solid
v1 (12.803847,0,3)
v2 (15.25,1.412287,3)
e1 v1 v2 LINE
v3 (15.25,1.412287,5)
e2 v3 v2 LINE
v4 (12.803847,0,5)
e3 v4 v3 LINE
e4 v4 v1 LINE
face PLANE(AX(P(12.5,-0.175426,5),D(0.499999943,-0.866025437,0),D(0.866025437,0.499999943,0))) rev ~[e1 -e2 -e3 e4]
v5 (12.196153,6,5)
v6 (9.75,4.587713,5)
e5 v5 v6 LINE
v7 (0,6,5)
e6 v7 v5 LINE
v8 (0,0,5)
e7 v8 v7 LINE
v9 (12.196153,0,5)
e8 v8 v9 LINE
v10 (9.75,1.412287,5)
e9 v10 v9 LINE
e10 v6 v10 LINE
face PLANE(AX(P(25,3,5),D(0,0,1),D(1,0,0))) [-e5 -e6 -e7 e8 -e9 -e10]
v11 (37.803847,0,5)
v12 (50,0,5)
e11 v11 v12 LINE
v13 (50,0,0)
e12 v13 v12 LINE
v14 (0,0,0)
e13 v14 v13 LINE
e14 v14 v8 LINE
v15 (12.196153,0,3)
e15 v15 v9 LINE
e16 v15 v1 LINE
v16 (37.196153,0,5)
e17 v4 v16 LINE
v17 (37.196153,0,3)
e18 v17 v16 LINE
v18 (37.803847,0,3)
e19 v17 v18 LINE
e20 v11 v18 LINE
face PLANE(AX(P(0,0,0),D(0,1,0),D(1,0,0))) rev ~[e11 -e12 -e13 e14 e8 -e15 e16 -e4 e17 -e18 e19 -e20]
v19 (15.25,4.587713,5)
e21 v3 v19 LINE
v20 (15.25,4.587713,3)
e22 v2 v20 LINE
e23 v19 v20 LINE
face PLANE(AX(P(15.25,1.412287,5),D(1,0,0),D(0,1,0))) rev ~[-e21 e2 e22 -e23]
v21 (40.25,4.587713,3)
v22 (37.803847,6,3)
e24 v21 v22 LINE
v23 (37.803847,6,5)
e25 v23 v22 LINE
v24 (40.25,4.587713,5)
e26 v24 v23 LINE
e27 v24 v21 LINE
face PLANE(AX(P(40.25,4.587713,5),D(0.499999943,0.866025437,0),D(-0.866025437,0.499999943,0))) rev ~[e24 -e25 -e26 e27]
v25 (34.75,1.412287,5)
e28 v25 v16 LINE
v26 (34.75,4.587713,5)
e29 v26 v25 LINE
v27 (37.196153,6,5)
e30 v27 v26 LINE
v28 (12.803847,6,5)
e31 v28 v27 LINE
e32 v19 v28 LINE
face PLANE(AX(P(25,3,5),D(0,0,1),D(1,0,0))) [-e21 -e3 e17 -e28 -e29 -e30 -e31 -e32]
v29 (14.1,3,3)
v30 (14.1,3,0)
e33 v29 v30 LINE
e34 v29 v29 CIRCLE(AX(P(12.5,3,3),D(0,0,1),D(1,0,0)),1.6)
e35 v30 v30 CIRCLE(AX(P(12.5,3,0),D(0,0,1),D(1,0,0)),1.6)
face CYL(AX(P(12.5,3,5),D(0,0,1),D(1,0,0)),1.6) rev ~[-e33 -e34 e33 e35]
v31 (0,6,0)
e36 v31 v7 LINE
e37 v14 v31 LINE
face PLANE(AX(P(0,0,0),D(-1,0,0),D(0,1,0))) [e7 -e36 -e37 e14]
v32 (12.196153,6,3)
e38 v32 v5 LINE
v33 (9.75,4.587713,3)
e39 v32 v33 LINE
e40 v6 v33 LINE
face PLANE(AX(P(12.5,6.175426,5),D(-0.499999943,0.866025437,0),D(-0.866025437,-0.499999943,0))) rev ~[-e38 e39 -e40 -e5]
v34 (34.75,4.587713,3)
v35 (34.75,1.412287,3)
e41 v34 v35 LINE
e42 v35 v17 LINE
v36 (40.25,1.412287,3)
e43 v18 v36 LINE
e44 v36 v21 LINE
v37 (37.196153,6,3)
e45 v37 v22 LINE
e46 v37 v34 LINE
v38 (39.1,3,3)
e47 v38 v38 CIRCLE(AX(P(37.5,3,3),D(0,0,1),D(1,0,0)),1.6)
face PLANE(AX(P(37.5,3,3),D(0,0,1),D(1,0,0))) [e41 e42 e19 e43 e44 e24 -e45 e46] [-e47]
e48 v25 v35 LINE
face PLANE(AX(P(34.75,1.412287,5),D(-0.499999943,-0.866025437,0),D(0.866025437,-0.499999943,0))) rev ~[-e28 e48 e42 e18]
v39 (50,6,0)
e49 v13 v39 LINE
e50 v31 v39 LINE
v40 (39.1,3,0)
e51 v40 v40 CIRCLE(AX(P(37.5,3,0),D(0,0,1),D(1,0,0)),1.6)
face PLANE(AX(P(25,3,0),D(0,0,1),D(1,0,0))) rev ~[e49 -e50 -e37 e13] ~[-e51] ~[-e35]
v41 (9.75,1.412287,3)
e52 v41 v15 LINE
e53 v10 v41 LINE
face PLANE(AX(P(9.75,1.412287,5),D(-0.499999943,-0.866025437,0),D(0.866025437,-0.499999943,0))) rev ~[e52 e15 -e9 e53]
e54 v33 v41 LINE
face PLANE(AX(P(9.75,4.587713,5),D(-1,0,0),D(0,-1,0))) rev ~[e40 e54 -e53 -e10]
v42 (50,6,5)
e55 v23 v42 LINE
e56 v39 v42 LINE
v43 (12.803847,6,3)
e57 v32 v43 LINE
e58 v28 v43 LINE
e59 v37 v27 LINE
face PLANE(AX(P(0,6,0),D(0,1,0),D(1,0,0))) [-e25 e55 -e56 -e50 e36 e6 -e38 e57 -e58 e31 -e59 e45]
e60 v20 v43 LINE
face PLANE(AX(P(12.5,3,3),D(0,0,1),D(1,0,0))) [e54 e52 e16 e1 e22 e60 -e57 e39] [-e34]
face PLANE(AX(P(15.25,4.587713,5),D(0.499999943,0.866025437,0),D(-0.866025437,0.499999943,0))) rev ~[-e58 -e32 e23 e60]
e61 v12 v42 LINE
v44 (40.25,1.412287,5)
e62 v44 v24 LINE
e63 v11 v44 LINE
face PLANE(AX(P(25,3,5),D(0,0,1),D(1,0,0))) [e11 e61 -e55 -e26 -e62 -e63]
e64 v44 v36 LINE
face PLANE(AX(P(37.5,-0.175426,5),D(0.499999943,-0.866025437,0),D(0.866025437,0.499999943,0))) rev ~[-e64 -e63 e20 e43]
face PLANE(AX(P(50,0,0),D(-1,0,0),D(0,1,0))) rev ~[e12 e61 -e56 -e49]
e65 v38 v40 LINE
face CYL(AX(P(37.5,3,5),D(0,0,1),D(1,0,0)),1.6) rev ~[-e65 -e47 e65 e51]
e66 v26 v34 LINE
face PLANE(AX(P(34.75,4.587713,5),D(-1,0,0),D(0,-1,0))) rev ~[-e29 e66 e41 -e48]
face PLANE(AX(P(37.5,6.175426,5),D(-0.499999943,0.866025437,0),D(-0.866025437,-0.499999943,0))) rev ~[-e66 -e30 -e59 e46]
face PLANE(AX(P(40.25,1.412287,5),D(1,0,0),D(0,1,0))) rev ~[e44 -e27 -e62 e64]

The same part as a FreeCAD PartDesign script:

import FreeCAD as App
import Part
import Sketcher
from FreeCAD import Vector
Q = App.Units.Quantity


def add_polygon(sketch, points):
    """Adds a closed chain of lines whose ends are joined by coincident constraints."""
    first, n = sketch.GeometryCount, len(points)
    for a, b in zip(points, points[1:] + points[:1]):
        sketch.addGeometry(Part.LineSegment(App.Vector(*a, 0), App.Vector(*b, 0)), False)
    for i in range(n):
        sketch.addConstraint(Sketcher.Constraint("Coincident", first + i, 2, first + (i + 1) % n, 1))

doc = App.newDocument("Part")
body = doc.addObject("PartDesign::Body", "Body")

sketch1 = body.newObject("Sketcher::SketchObject", "Sketch")
sketch1.AttachmentSupport = (doc.getObject("XY_Plane"), [""])
sketch1.MapMode = "FlatFace"
add_polygon(sketch1, [(0, 6), (0, 0), (50, 0), (50, 6)])
sketch1.addConstraint(Sketcher.Constraint("Vertical", 0))
sketch1.addConstraint(Sketcher.Constraint("Horizontal", 1))
sketch1.addConstraint(Sketcher.Constraint("Vertical", 2))
sketch1.addConstraint(Sketcher.Constraint("Horizontal", 3))
sketch1.addConstraint(Sketcher.Constraint("Coincident", 0, 2, -1, 1))
sketch1.addConstraint(Sketcher.Constraint("DistanceX", 1, 1, 1, 2, 50.0))
sketch1.addConstraint(Sketcher.Constraint("DistanceY", 0, 2, 0, 1, 6.0))
pad1 = body.newObject("PartDesign::Pad", "Pad")
pad1.Profile = sketch1
pad1.Length = 5

sketch2 = body.newObject("Sketcher::SketchObject", "Sketch001")
sketch2.AttachmentSupport = (doc.getObject("XY_Plane"), [""])
sketch2.MapMode = "FlatFace"
sketch2.AttachmentOffset = App.Placement(Vector(0, 0, 5), App.Rotation())
sketch2.addGeometry(Part.Circle(Vector(12.5, 3, 0), Vector(0, 0, 1), 1.6), False)
sketch2.addGeometry(Part.Circle(Vector(37.5, 3, 0), Vector(0, 0, 1), 1.6), False)
sketch2.addConstraint(Sketcher.Constraint("Equal", 0, 1))
sketch2.addConstraint(Sketcher.Constraint("Horizontal", 0, 3, 1, 3))
sketch2.addConstraint(Sketcher.Constraint("Diameter", 0, 3.2))
sketch2.addConstraint(Sketcher.Constraint("DistanceY", -1, 1, 0, 3, 3.0))
sketch2.addConstraint(Sketcher.Constraint("DistanceX", 0, 3, 1, 3, 25.0))
sketch2.addConstraint(Sketcher.Constraint("DistanceX", -1, 1, 0, 3, 12.5))
pocket1 = body.newObject("PartDesign::Pocket", "Pocket")
pocket1.Profile = sketch2
pocket1.Length = 5

sketch3 = body.newObject("Sketcher::SketchObject", "Sketch002")
sketch3.AttachmentSupport = (doc.getObject("XY_Plane"), [""])
sketch3.MapMode = "FlatFace"
sketch3.AttachmentOffset = App.Placement(Vector(0, 0, 5), App.Rotation())
add_polygon(sketch3, [(15.25, 4.587713), (12.5, 6.175426), (9.75, 4.587713), (9.75, 1.412287), (12.5, -0.175426), (15.25, 1.412287)])
add_polygon(sketch3, [(40.25, 1.412287), (40.25, 4.587713), (37.5, 6.175426), (34.75, 4.587713), (34.75, 1.412287), (37.5, -0.175426)])
sketch3.addConstraint(Sketcher.Constraint("Vertical", 2))
sketch3.addConstraint(Sketcher.Constraint("Vertical", 5))
sketch3.addConstraint(Sketcher.Constraint("Vertical", 6))
sketch3.addConstraint(Sketcher.Constraint("Vertical", 9))
sketch3.addConstraint(Sketcher.Constraint("Parallel", 0, 3))
sketch3.addConstraint(Sketcher.Constraint("Parallel", 1, 4))
sketch3.addConstraint(Sketcher.Constraint("Parallel", 3, 7))
sketch3.addConstraint(Sketcher.Constraint("Parallel", 4, 8))
sketch3.addConstraint(Sketcher.Constraint("Parallel", 7, 10))
sketch3.addConstraint(Sketcher.Constraint("Parallel", 8, 11))
sketch3.addConstraint(Sketcher.Constraint("Horizontal", 2, 2, 4, 2))
sketch3.addConstraint(Sketcher.Constraint("Horizontal", 1, 2, 5, 2))
sketch3.addConstraint(Sketcher.Constraint("Horizontal", 5, 2, 6, 2))
sketch3.addConstraint(Sketcher.Constraint("Horizontal", 0, 2, 7, 2))
sketch3.addConstraint(Sketcher.Constraint("Horizontal", 6, 2, 8, 2))
sketch3.addConstraint(Sketcher.Constraint("Horizontal", 4, 2, 9, 2))
sketch3.addConstraint(Sketcher.Constraint("Horizontal", 3, 2, 10, 2))
sketch3.addConstraint(Sketcher.Constraint("Vertical", 0, 2, 3, 2))
sketch3.addConstraint(Sketcher.Constraint("Angle", 0, Q("150.000004 deg")))
sketch3.addConstraint(Sketcher.Constraint("DistanceX", 5, 2, 6, 2, 25.0))
sketch3.addConstraint(Sketcher.Constraint("DistanceX", -1, 1, 0, 2, 12.5))
sketch3.addConstraint(Sketcher.Constraint("DistanceX", 2, 2, 4, 2, 5.5))
sketch3.addConstraint(Sketcher.Constraint("DistanceY", 2, 2, 2, 1, 3.175426))
sketch3.addConstraint(Sketcher.Constraint("DistanceY", -1, 1, 0, 2, 6.175426))
pocket2 = body.newObject("PartDesign::Pocket", "Pocket001")
pocket2.Profile = sketch3
pocket2.Length = 2

doc.recompute()
